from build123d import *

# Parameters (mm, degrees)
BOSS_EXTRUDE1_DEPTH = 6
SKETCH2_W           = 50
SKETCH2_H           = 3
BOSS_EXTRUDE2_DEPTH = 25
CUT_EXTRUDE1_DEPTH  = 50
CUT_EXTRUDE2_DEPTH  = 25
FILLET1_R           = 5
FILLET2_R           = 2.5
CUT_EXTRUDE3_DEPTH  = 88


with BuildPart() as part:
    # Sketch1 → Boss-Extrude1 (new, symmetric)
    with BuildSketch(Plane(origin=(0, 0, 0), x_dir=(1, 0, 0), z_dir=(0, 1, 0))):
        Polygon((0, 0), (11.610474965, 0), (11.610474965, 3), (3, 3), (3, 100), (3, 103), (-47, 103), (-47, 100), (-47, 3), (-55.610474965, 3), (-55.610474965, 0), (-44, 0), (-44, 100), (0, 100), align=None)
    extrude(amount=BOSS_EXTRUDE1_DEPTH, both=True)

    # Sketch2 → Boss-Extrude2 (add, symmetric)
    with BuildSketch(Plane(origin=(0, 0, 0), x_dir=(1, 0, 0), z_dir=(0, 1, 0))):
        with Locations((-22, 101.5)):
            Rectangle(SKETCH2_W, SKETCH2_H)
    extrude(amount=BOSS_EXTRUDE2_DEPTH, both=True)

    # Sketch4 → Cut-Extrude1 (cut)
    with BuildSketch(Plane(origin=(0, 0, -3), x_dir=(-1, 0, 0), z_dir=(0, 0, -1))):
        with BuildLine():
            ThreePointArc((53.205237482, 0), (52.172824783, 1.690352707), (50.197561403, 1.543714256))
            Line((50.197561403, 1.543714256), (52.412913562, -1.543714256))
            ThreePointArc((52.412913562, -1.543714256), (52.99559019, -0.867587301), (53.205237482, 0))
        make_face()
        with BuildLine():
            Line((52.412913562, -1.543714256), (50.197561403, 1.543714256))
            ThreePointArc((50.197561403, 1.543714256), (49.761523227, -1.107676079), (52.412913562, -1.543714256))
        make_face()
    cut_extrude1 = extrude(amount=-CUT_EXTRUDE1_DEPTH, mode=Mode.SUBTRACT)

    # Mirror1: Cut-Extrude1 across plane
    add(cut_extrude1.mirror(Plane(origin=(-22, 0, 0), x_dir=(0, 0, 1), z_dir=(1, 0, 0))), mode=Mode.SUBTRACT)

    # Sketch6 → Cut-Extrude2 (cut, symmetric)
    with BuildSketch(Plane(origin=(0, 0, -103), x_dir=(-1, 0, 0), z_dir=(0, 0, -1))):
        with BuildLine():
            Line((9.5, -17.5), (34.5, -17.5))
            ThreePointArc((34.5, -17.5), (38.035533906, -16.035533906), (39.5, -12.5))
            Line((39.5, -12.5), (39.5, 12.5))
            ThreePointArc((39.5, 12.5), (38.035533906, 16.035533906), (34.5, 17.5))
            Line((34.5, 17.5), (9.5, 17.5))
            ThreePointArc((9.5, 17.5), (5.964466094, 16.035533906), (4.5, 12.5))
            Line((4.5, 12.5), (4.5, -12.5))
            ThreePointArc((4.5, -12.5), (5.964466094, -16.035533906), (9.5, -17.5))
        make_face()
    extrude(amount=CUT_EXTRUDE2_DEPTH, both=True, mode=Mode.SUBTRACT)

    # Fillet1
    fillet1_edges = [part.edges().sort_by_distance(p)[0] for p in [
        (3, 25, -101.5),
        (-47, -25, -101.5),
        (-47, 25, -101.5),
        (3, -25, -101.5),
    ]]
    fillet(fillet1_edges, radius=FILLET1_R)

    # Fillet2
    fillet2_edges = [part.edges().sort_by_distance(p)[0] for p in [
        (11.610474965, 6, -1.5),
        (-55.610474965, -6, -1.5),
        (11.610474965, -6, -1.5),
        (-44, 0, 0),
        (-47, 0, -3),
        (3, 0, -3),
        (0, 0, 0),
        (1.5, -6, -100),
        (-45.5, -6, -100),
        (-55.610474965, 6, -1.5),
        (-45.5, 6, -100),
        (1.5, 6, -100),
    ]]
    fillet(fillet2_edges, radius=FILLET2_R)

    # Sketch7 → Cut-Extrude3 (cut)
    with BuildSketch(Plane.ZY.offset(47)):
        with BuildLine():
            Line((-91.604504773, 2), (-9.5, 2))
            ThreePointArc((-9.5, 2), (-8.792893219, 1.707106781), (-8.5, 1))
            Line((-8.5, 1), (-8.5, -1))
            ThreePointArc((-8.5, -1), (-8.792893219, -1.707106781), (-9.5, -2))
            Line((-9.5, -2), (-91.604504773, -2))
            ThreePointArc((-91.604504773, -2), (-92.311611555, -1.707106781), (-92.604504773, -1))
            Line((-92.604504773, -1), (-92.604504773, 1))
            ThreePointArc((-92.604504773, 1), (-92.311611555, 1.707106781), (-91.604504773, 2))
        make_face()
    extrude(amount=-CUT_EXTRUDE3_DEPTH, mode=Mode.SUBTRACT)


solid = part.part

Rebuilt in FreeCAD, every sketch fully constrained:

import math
import FreeCAD as App
import Part
import Sketcher
from FreeCAD import Vector
Q = App.Units.Quantity


def edges_at(feature, points):
    """Names of the edges that pass closest to the given points."""
    edges = feature.Shape.Edges
    near = lambda p: min(range(len(edges)), key=lambda i: edges[i].distToShape(Part.Vertex(*p))[0])
    return sorted({f"Edge{near(p) + 1}" for p in points})

doc = App.newDocument("Part")
body = doc.addObject("PartDesign::Body", "Body")

# Sketch on XZ plane
sketch1 = body.newObject("Sketcher::SketchObject", "Sketch")
sketch1.AttachmentSupport = (doc.getObject("XZ_Plane"), [""])
sketch1.MapMode = "FlatFace"
sketch1.addGeometry([
    Part.LineSegment(Vector(0, 0, 0), Vector(11.610475, 0, 0)),  # 0
    Part.LineSegment(Vector(11.610475, 0, 0), Vector(11.610475, -3, 0)),  # 1
    Part.LineSegment(Vector(11.610475, -3, 0), Vector(3, -3, 0)),  # 2
    Part.LineSegment(Vector(3, -3, 0), Vector(3, -103, 0)),  # 3
    Part.LineSegment(Vector(3, -103, 0), Vector(-47, -103, 0)),  # 4
    Part.LineSegment(Vector(-47, -103, 0), Vector(-47, -3, 0)),  # 5
    Part.LineSegment(Vector(-47, -3, 0), Vector(-55.610475, -3, 0)),  # 6
    Part.LineSegment(Vector(-55.610475, -3, 0), Vector(-55.610475, 0, 0)),  # 7
    Part.LineSegment(Vector(-55.610475, 0, 0), Vector(-44, 0, 0)),  # 8
    Part.LineSegment(Vector(-44, 0, 0), Vector(-44, -100, 0)),  # 9
    Part.LineSegment(Vector(-44, -100, 0), Vector(0, -100, 0)),  # 10
    Part.LineSegment(Vector(0, -100, 0), Vector(0, 0, 0)),  # 11
], False)
sketch1.addConstraint([
    Sketcher.Constraint("Coincident", 0, 2, 1, 1),
    Sketcher.Constraint("Coincident", 1, 2, 2, 1),
    Sketcher.Constraint("Coincident", 2, 2, 3, 1),
    Sketcher.Constraint("Coincident", 3, 2, 4, 1),
    Sketcher.Constraint("Coincident", 4, 2, 5, 1),
    Sketcher.Constraint("Coincident", 5, 2, 6, 1),
    Sketcher.Constraint("Coincident", 6, 2, 7, 1),
    Sketcher.Constraint("Coincident", 7, 2, 8, 1),
    Sketcher.Constraint("Coincident", 8, 2, 9, 1),
    Sketcher.Constraint("Coincident", 9, 2, 10, 1),
    Sketcher.Constraint("Coincident", 10, 2, 11, 1),
    Sketcher.Constraint("Coincident", 11, 2, 0, 1),
    Sketcher.Constraint("Horizontal", 0),
    Sketcher.Constraint("Vertical", 1),
    Sketcher.Constraint("Horizontal", 2),
    Sketcher.Constraint("Vertical", 3),
    Sketcher.Constraint("Horizontal", 4),
    Sketcher.Constraint("Vertical", 5),
    Sketcher.Constraint("Horizontal", 6),
    Sketcher.Constraint("Vertical", 7),
    Sketcher.Constraint("Horizontal", 8),
    Sketcher.Constraint("Vertical", 9),
    Sketcher.Constraint("Horizontal", 10),
    Sketcher.Constraint("Vertical", 11),
    Sketcher.Constraint("Coincident", 11, 2, -1, 1),
    Sketcher.Constraint("PointOnObject", 7, 2, -1),
    Sketcher.Constraint("Horizontal", 2, 2, 5, 2),
    Sketcher.Constraint("Equal", 2, 6),
    Sketcher.Constraint("Equal", 0, 8),
    Sketcher.Constraint("Equal", 5, 9),
    Sketcher.Constraint("DistanceX", 4, 2, 4, 1, Q("50 mm")),
    Sketcher.Constraint("DistanceX", 10, 1, 10, 2, Q("44 mm")),
    Sketcher.Constraint("DistanceY", 1, 2, 1, 1, Q("3 mm")),
    Sketcher.Constraint("DistanceY", 3, 2, 3, 1, Q("100 mm")),
    Sketcher.Constraint("DistanceX", 0, 1, 0, 2, Q("11.610475 mm")),
])
pad1 = body.newObject("PartDesign::Pad", "Pad")
pad1.Profile = sketch1
pad1.Length = 12
pad1.Midplane = True

# Sketch on XZ plane
sketch2 = body.newObject("Sketcher::SketchObject", "Sketch001")
sketch2.AttachmentSupport = (doc.getObject("XZ_Plane"), [""])
sketch2.MapMode = "FlatFace"
sketch2.addGeometry([
    Part.LineSegment(Vector(-47, -103, 0), Vector(-47, -100, 0)),
    Part.LineSegment(Vector(-47, -100, 0), Vector(3, -100, 0)),
    Part.LineSegment(Vector(3, -100, 0), Vector(3, -103, 0)),
    Part.LineSegment(Vector(3, -103, 0), Vector(-47, -103, 0)),
], False)
sketch2.addConstraint([
    Sketcher.Constraint("Coincident", 0, 2, 1, 1),
    Sketcher.Constraint("Coincident", 1, 2, 2, 1),
    Sketcher.Constraint("Coincident", 2, 2, 3, 1),
    Sketcher.Constraint("Coincident", 3, 2, 0, 1),
    Sketcher.Constraint("Vertical", 0),
    Sketcher.Constraint("Horizontal", 1),
    Sketcher.Constraint("Vertical", 2),
    Sketcher.Constraint("Horizontal", 3),
    Sketcher.Constraint("DistanceX", 1, 1, 1, 2, Q("50 mm")),
    Sketcher.Constraint("DistanceY", 0, 1, 0, 2, Q("3 mm")),
    Sketcher.Constraint("DistanceX", 0, 2, -1, 1, Q("47 mm")),
    Sketcher.Constraint("DistanceY", 0, 2, -1, 1, Q("100 mm")),
])
pad2 = body.newObject("PartDesign::Pad", "Pad001")
pad2.Profile = sketch2
pad2.Length = 50
pad2.Midplane = True

# Sketch on XY plane
sketch3 = body.newObject("Sketcher::SketchObject", "Sketch002")
sketch3.AttachmentSupport = (doc.getObject("XY_Plane"), [""])
sketch3.MapMode = "FlatFace"
sketch3.AttachmentOffset = App.Placement(Vector(0, 0, -3), App.Rotation())
sketch3.addGeometry([
    Part.ArcOfCircle(Part.Circle(Vector(-51.305237, 0, 0), Vector(0, 0, 1), 1.9), math.radians(54.339063), math.radians(180)),
    Part.ArcOfCircle(Part.Circle(Vector(-51.305237, 0, 0), Vector(0, 0, 1), 1.9), math.radians(-125.660937), math.radians(54.339063)),
    Part.ArcOfCircle(Part.Circle(Vector(-51.305237, 0, 0), Vector(0, 0, 1), 1.9), math.radians(180), math.radians(234.339063)),
], False)
sketch3.addConstraint([
    Sketcher.Constraint("Tangent", 0, 1, 1, 2),
    Sketcher.Constraint("Tangent", 1, 1, 2, 2),
    Sketcher.Constraint("Tangent", 2, 1, 0, 2),
    Sketcher.Constraint("PointOnObject", 0, 3, -1),
    Sketcher.Constraint("PointOnObject", 2, 1, -1),
    Sketcher.Constraint("Radius", 0, Q("1.9 mm")),
    Sketcher.Constraint("DistanceX", 0, 1, -1, 1, Q("50.197561 mm")),
    Sketcher.Constraint("DistanceY", 1, 1, 0, 1, Q("3.087429 mm")),
    Sketcher.Constraint("DistanceX", 0, 3, -1, 1, Q("51.305237 mm")),
])
pocket1 = body.newObject("PartDesign::Pocket", "Pocket")
pocket1.Profile = sketch3
pocket1.Length = 50
pocket1.Reversed = True
doc.recompute()

datumplane = body.newObject("PartDesign::Plane", "DatumPlane")
datumplane.AttachmentSupport = (doc.getObject("YZ_Plane"), [""])
datumplane.MapMode = "FlatFace"
datumplane.AttachmentOffset = App.Placement(Vector(0, 0, -22), App.Rotation())
mirrored = body.newObject("PartDesign::Mirrored", "Mirrored")
mirrored.Originals = [pocket1]
mirrored.MirrorPlane = (datumplane, [""])
body.Tip = mirrored

# Sketch on XY plane
sketch4 = body.newObject("Sketcher::SketchObject", "Sketch003")
sketch4.AttachmentSupport = (doc.getObject("XY_Plane"), [""])
sketch4.MapMode = "FlatFace"
sketch4.AttachmentOffset = App.Placement(Vector(0, 0, -103), App.Rotation())
sketch4.addGeometry([
    Part.LineSegment(Vector(-9.5, -17.5, 0), Vector(-34.5, -17.5, 0)),  # 0
    Part.ArcOfCircle(Part.Circle(Vector(-34.5, -12.5, 0), Vector(0, 0, 1), 5), math.radians(180), math.radians(270)),  # 1
    Part.LineSegment(Vector(-39.5, -12.5, 0), Vector(-39.5, 12.5, 0)),  # 2
    Part.ArcOfCircle(Part.Circle(Vector(-34.5, 12.5, 0), Vector(0, 0, 1), 5), math.radians(90), math.radians(180)),  # 3
    Part.LineSegment(Vector(-34.5, 17.5, 0), Vector(-9.5, 17.5, 0)),  # 4
    Part.ArcOfCircle(Part.Circle(Vector(-9.5, 12.5, 0), Vector(0, 0, 1), 5), math.radians(0), math.radians(90)),  # 5
    Part.LineSegment(Vector(-4.5, 12.5, 0), Vector(-4.5, -12.5, 0)),  # 6
    Part.ArcOfCircle(Part.Circle(Vector(-9.5, -12.5, 0), Vector(0, 0, 1), 5), math.radians(-90), math.radians(0)),  # 7
], False)
sketch4.addConstraint([
    Sketcher.Constraint("Tangent", 0, 2, 1, 2),
    Sketcher.Constraint("Tangent", 1, 1, 2, 1),
    Sketcher.Constraint("Tangent", 2, 2, 3, 2),
    Sketcher.Constraint("Tangent", 3, 1, 4, 1),
    Sketcher.Constraint("Tangent", 4, 2, 5, 2),
    Sketcher.Constraint("Tangent", 5, 1, 6, 1),
    Sketcher.Constraint("Tangent", 6, 2, 7, 2),
    Sketcher.Constraint("Tangent", 7, 1, 0, 1),
    Sketcher.Constraint("Horizontal", 0),
    Sketcher.Constraint("Vertical", 2),
    Sketcher.Constraint("Horizontal", 4),
    Sketcher.Constraint("Vertical", 6),
    Sketcher.Constraint("Equal", 1, 3),
    Sketcher.Constraint("Equal", 3, 5),
    Sketcher.Constraint("Equal", 5, 7),
    Sketcher.Constraint("Equal", 4, 2),
    Sketcher.Constraint("Radius", 1, Q("5 mm")),
    Sketcher.Constraint("DistanceX", 0, 2, 0, 1, Q("25 mm")),
    Sketcher.Constraint("DistanceX", 1, 3, -1, 1, Q("34.5 mm")),
    Sketcher.Constraint("DistanceY", 1, 3, -1, 1, Q("12.5 mm")),
])
pocket2 = body.newObject("PartDesign::Pocket", "Pocket001")
pocket2.Profile = sketch4
pocket2.Length = 50
pocket2.Midplane = True
doc.recompute()

fillet = body.newObject("PartDesign::Fillet", "Fillet")
fillet.Base = (pocket2, edges_at(pocket2, [
    (3, 25, -101.5),
    (-47, -25, -101.5),
    (-47, 25, -101.5),
    (3, -25, -101.5),
]))
fillet.Radius = 5
doc.recompute()

fillet2 = body.newObject("PartDesign::Fillet", "Fillet001")
fillet2.Base = (fillet, edges_at(fillet, [
    (11.61, 6, -1.5),
    (-55.61, -6, -1.5),
    (11.61, -6, -1.5),
    (-44, 0, 0),
    (-47, 0, -3),
    (3, 0, -3),
    (0, 0, 0),
    (1.5, -6, -100),
    (-45.5, -6, -100),
    (-55.61, 6, -1.5),
    (-45.5, 6, -100),
    (1.5, 6, -100),
]))
fillet2.Radius = 2.5

# Sketch on YZ plane
sketch5 = body.newObject("Sketcher::SketchObject", "Sketch004")
sketch5.AttachmentSupport = (doc.getObject("YZ_Plane"), [""])
sketch5.MapMode = "FlatFace"
sketch5.AttachmentOffset = App.Placement(Vector(0, 0, -47), App.Rotation())
sketch5.addGeometry([
    Part.LineSegment(Vector(2, -9.5, 0), Vector(2, -91.604505, 0)),  # 0
    Part.ArcOfCircle(Part.Circle(Vector(1, -91.604505, 0), Vector(0, 0, 1), 1), math.radians(-90), math.radians(0)),  # 1
    Part.LineSegment(Vector(1, -92.604505, 0), Vector(-1, -92.604505, 0)),  # 2
    Part.ArcOfCircle(Part.Circle(Vector(-1, -91.604505, 0), Vector(0, 0, 1), 1), math.radians(180), math.radians(270)),  # 3
    Part.LineSegment(Vector(-2, -91.604505, 0), Vector(-2, -9.5, 0)),  # 4
    Part.ArcOfCircle(Part.Circle(Vector(-1, -9.5, 0), Vector(0, 0, 1), 1), math.radians(90), math.radians(180)),  # 5
    Part.LineSegment(Vector(-1, -8.5, 0), Vector(1, -8.5, 0)),  # 6
    Part.ArcOfCircle(Part.Circle(Vector(1, -9.5, 0), Vector(0, 0, 1), 1), math.radians(0), math.radians(90)),  # 7
], False)
sketch5.addConstraint([
    Sketcher.Constraint("Tangent", 0, 2, 1, 2),
    Sketcher.Constraint("Tangent", 1, 1, 2, 1),
    Sketcher.Constraint("Tangent", 2, 2, 3, 2),
    Sketcher.Constraint("Tangent", 3, 1, 4, 1),
    Sketcher.Constraint("Tangent", 4, 2, 5, 2),
    Sketcher.Constraint("Tangent", 5, 1, 6, 1),
    Sketcher.Constraint("Tangent", 6, 2, 7, 2),
    Sketcher.Constraint("Tangent", 7, 1, 0, 1),
    Sketcher.Constraint("Vertical", 0),
    Sketcher.Constraint("Horizontal", 2),
    Sketcher.Constraint("Vertical", 4),
    Sketcher.Constraint("Horizontal", 6),
    Sketcher.Constraint("Equal", 1, 3),
    Sketcher.Constraint("Equal", 3, 5),
    Sketcher.Constraint("Equal", 5, 7),
    Sketcher.Constraint("Radius", 1, Q("1 mm")),
    Sketcher.Constraint("DistanceX", 2, 2, 2, 1, Q("2 mm")),
    Sketcher.Constraint("DistanceX", -1, 1, 1, 3, Q("1 mm")),
    Sketcher.Constraint("DistanceY", 5, 3, -1, 1, Q("9.5 mm")),
    Sketcher.Constraint("DistanceY", 0, 2, 0, 1, Q("82.104505 mm")),
])
pocket3 = body.newObject("PartDesign::Pocket", "Pocket002")
pocket3.Profile = sketch5
pocket3.Length = 88
pocket3.Reversed = True

doc.recompute()
